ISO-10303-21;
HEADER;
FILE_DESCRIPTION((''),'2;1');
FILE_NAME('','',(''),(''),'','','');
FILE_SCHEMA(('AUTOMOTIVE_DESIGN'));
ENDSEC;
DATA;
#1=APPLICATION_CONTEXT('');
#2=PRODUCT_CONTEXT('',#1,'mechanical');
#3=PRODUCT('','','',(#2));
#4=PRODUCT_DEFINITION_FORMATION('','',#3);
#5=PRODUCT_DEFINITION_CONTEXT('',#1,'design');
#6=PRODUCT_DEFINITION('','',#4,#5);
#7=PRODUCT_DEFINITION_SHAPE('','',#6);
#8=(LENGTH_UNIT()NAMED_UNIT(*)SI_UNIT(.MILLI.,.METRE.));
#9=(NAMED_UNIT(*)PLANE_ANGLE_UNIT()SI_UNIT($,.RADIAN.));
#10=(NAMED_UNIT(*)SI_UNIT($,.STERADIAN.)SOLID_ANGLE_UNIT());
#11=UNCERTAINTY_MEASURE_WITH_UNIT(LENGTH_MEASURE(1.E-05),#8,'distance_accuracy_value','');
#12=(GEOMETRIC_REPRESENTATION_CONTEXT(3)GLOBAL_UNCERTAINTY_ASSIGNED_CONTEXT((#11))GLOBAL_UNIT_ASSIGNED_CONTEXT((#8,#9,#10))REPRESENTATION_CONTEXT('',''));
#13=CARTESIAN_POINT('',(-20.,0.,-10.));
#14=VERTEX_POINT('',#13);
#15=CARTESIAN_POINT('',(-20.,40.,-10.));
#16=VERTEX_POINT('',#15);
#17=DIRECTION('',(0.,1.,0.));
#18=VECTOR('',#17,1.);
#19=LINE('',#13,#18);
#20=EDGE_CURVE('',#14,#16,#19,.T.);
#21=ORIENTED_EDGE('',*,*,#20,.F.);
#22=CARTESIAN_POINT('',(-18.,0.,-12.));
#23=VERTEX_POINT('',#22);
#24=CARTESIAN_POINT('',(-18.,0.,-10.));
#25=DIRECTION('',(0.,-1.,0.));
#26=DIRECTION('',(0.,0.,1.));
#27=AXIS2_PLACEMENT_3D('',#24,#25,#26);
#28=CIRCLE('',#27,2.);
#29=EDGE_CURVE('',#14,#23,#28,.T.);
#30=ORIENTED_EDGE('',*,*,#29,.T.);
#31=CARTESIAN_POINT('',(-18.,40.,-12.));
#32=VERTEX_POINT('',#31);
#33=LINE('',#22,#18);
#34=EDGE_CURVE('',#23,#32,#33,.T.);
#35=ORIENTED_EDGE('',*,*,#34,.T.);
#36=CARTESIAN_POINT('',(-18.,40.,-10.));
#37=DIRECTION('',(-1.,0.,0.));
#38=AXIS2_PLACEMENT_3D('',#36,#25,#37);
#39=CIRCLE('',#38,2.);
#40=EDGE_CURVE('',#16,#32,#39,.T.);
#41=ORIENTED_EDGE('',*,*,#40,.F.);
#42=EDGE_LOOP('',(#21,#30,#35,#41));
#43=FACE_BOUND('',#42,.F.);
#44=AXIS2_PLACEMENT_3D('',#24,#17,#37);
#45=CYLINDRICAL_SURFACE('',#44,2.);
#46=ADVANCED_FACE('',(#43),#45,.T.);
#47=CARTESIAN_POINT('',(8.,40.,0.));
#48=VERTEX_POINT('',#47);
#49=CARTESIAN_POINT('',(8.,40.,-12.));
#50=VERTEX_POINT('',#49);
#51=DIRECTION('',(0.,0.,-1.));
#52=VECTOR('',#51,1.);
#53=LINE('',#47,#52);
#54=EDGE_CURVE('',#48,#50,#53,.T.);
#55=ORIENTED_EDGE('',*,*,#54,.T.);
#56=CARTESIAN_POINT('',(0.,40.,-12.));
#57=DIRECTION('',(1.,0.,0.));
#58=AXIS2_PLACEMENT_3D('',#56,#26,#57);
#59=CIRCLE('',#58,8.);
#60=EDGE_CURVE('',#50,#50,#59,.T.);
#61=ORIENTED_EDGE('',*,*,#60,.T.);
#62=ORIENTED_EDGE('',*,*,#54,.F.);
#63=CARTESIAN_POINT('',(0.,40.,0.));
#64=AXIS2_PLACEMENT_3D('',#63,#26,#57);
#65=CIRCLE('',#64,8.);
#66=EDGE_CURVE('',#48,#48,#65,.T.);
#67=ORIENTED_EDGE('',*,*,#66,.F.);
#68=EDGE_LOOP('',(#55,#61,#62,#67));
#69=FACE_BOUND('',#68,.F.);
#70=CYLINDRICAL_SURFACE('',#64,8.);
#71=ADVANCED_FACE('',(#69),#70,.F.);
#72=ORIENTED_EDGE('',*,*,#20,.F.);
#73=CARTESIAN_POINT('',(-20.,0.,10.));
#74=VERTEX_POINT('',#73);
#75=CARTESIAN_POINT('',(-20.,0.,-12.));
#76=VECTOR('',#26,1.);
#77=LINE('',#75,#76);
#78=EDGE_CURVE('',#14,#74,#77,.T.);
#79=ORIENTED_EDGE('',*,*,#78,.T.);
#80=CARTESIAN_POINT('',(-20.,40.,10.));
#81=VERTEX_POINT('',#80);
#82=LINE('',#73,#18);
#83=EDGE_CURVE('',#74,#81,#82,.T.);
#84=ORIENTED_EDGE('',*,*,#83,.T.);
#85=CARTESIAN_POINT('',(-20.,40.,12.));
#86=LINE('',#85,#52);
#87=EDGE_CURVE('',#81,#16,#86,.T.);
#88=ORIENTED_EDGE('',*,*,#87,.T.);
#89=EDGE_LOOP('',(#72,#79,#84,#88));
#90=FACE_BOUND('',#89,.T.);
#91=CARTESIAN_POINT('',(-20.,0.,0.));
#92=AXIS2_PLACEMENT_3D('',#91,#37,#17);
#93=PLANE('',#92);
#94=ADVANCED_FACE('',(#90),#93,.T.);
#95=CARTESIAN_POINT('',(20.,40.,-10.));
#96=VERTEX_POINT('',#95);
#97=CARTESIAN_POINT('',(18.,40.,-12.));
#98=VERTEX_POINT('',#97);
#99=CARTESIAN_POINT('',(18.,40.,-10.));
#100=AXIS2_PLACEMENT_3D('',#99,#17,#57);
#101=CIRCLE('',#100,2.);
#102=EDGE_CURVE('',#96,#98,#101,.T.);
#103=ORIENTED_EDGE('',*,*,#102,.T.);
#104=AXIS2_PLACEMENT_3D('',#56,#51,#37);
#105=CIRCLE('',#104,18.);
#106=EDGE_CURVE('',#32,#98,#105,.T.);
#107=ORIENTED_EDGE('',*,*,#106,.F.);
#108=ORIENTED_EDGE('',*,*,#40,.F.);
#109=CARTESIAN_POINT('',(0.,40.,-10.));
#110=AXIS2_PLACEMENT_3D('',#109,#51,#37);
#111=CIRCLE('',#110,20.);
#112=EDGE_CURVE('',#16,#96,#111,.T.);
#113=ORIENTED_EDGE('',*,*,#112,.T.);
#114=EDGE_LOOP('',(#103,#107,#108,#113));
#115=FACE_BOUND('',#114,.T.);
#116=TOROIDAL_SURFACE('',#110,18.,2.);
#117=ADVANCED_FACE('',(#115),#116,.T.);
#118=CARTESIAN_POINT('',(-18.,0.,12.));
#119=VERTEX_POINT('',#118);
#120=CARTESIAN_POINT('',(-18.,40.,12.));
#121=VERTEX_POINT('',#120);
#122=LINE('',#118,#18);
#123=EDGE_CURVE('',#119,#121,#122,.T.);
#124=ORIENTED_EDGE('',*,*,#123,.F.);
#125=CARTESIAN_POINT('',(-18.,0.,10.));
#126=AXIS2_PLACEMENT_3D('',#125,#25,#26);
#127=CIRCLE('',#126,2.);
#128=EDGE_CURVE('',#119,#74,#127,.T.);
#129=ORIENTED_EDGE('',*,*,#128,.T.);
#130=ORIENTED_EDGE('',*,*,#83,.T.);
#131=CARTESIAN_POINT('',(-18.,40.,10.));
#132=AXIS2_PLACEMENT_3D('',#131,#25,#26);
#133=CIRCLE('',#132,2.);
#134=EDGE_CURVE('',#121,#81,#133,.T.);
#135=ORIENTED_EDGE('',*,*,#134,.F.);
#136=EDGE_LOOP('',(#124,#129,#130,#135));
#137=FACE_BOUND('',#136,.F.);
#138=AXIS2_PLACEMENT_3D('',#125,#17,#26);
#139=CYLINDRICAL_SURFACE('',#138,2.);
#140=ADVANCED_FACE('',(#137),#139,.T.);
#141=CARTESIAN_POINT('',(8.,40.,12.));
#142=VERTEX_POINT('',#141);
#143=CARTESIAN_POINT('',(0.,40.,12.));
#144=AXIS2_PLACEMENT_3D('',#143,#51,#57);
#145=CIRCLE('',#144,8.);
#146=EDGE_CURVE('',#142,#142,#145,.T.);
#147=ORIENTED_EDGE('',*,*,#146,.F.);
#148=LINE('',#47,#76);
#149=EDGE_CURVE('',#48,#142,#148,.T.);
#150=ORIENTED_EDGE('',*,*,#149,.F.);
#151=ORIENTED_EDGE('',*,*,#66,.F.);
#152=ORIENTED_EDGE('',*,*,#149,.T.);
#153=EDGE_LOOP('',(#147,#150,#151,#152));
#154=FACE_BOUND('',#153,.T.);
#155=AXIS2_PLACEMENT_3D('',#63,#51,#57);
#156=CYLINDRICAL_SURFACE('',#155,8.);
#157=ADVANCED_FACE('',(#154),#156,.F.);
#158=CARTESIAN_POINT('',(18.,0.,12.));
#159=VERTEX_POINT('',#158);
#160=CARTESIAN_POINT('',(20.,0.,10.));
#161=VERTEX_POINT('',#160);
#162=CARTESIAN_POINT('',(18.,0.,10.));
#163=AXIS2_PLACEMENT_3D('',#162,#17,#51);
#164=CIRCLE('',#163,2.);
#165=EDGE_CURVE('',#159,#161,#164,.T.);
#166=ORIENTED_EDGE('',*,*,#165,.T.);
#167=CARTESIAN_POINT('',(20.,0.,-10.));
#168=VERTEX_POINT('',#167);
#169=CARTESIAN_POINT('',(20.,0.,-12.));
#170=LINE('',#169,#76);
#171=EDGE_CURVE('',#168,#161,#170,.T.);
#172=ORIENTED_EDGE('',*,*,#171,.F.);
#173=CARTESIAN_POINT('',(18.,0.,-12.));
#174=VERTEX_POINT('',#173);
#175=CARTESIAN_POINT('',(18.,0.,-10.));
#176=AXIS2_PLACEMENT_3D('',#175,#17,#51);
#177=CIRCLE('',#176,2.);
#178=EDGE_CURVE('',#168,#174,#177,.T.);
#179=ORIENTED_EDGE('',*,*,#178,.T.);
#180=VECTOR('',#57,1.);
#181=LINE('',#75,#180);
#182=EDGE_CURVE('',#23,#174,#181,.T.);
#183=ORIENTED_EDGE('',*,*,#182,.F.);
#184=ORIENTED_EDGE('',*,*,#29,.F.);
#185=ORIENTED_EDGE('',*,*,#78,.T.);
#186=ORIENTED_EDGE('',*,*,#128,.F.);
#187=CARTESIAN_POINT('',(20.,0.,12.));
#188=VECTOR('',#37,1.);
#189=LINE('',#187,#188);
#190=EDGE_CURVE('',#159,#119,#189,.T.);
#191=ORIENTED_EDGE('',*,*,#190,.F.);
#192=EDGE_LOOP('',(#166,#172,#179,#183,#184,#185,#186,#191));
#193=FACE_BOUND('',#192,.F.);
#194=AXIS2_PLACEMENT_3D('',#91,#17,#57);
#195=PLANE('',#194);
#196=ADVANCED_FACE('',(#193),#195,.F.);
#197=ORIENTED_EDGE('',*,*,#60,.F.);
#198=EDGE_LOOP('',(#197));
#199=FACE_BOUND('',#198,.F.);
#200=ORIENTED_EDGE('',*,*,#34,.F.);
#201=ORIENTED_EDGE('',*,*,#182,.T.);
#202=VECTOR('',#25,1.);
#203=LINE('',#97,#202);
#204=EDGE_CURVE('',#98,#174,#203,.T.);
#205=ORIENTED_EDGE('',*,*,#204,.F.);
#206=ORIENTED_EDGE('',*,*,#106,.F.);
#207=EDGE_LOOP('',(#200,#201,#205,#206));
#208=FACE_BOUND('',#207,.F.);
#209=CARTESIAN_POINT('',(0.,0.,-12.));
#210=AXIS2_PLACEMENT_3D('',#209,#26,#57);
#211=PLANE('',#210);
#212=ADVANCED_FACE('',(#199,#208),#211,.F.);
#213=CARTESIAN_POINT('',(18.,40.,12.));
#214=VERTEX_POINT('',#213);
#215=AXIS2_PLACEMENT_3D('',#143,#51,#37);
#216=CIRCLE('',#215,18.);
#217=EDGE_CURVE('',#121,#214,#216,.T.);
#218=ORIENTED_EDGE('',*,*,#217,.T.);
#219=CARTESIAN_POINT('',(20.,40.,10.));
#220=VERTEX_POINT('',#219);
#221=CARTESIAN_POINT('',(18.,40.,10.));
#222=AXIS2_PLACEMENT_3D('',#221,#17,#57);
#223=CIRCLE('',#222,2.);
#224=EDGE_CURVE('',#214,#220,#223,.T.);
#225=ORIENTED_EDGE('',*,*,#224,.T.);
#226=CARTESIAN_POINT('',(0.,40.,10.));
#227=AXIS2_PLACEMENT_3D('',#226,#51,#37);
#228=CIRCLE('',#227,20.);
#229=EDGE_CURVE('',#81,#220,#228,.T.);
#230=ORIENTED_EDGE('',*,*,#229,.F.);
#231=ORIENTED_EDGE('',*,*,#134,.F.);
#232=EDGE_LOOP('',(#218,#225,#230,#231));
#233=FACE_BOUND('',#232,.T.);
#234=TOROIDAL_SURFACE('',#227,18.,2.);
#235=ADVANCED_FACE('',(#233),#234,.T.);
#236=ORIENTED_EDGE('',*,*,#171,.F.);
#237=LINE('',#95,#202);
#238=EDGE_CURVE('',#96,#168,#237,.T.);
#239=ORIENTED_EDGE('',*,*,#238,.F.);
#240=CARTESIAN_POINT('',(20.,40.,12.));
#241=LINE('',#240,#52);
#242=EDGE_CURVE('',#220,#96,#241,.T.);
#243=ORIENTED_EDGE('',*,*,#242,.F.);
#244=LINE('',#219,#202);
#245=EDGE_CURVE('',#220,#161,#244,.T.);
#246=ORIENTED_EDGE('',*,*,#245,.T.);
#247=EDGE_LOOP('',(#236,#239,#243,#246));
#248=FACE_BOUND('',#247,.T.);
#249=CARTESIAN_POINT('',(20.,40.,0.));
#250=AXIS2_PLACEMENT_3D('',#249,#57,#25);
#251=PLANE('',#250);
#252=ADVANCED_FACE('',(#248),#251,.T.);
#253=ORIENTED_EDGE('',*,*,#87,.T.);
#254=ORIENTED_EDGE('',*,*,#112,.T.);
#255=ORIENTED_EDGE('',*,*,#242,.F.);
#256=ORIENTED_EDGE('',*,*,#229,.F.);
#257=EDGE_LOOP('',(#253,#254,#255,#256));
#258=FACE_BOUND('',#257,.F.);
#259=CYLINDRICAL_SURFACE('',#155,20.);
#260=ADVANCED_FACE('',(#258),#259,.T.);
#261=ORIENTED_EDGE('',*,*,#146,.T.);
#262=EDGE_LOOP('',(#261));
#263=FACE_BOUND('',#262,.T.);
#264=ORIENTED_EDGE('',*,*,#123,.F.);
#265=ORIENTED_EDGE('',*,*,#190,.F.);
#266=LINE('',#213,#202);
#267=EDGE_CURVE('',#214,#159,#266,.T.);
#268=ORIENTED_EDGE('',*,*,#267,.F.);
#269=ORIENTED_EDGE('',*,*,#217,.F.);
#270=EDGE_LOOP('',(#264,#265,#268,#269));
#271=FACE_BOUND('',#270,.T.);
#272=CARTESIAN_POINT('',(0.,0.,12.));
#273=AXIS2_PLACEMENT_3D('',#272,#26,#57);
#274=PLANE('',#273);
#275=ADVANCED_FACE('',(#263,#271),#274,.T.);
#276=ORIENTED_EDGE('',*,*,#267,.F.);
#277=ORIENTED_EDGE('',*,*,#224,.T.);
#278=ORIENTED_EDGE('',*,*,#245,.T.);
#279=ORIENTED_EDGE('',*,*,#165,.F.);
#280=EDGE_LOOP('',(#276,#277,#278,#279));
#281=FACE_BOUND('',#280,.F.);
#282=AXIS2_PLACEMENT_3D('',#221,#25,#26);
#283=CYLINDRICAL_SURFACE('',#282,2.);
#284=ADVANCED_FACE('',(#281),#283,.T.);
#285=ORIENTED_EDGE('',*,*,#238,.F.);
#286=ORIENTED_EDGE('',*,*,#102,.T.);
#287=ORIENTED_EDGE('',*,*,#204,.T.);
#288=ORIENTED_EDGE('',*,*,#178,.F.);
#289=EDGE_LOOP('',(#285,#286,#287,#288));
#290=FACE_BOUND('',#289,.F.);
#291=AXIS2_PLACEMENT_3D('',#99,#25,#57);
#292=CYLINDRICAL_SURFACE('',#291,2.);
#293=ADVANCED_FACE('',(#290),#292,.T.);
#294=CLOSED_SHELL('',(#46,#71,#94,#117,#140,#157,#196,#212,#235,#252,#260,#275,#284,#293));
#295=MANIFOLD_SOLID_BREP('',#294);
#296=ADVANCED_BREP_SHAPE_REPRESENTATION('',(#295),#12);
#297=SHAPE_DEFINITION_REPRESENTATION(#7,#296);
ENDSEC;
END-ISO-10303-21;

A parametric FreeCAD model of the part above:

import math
import FreeCAD as App
import Part
import Sketcher
Q = App.Units.Quantity


def edges_at(feature, points):
    """Names of the edges that pass closest to the given points."""
    edges = feature.Shape.Edges
    near = lambda p: min(range(len(edges)), key=lambda i: edges[i].distToShape(Part.Vertex(*p))[0])
    return sorted({f"Edge{near(p) + 1}" for p in points})

doc = App.newDocument("Part")
params = doc.addObject("Spreadsheet::Sheet", "Params")
for row, (alias, value) in enumerate([
    ("sketch1_diameter", "16 mm"),
    ("sketch1_radius", "20 mm"),
    ("pad1_length", "24 mm"),
    ("fillet_radius", "2 mm"),
], start=1):
    params.set(f"A{row}", alias)
    params.set(f"B{row}", "=" + value)
    params.setAlias(f"B{row}", alias)

body = doc.addObject("PartDesign::Body", "Body")

sketch1 = body.newObject("Sketcher::SketchObject", "Sketch")
sketch1.AttachmentSupport = (doc.getObject("XY_Plane"), [""])
sketch1.MapMode = "FlatFace"
sketch1.addGeometry([
    Part.LineSegment(App.Vector(-20, 40, 0), App.Vector(-20, 0, 0)),
    Part.LineSegment(App.Vector(-20, 0, 0), App.Vector(20, 0, 0)),
    Part.LineSegment(App.Vector(20, 0, 0), App.Vector(20, 40, 0)),
    Part.ArcOfCircle(Part.Circle(App.Vector(0, 40, 0), App.Vector(0, 0, 1), 20), math.radians(0), math.radians(180)),
    Part.Circle(App.Vector(0, 40, 0), App.Vector(0, 0, 1), 8),
], False)
sketch1.addConstraint([
    Sketcher.Constraint("Coincident", 0, 2, 1, 1),
    Sketcher.Constraint("Coincident", 1, 2, 2, 1),
    Sketcher.Constraint("Tangent", 2, 2, 3, 1),
    Sketcher.Constraint("Tangent", 3, 2, 0, 1),
    Sketcher.Constraint("Vertical", 0),
    Sketcher.Constraint("Horizontal", 1),
    Sketcher.Constraint("Vertical", 2),
    Sketcher.Constraint("Coincident", 4, 3, 3, 3),
    Sketcher.Constraint("Symmetric", 0, 2, 1, 2, -1, 1),
    Sketcher.Constraint("Equal", 1, 0),
    Sketcher.Constraint("Diameter", 4, Q("16 mm")),
    Sketcher.Constraint("Radius", 3, Q("20 mm")),
])
sketch1.setExpression("Constraints[10]", "Params.sketch1_diameter")
sketch1.setExpression("Constraints[11]", "Params.sketch1_radius")
pad1 = body.newObject("PartDesign::Pad", "Pad")
pad1.Profile = sketch1
pad1.setExpression("Length", "Params.pad1_length")
pad1.Midplane = True
doc.recompute()

fillet = body.newObject("PartDesign::Fillet", "Fillet")
fillet.Base = (pad1, edges_at(pad1, [
    (20, 20, 12),
    (-14.142, 54.142, 12),
    (14.142, 54.142, 12),
    (-20, 20, 12),
    (20, 20, -12),
    (-14.142, 54.142, -12),
    (14.142, 54.142, -12),
    (-20, 20, -12),
]))
fillet.setExpression("Radius", "Params.fillet_radius")

doc.recompute()
